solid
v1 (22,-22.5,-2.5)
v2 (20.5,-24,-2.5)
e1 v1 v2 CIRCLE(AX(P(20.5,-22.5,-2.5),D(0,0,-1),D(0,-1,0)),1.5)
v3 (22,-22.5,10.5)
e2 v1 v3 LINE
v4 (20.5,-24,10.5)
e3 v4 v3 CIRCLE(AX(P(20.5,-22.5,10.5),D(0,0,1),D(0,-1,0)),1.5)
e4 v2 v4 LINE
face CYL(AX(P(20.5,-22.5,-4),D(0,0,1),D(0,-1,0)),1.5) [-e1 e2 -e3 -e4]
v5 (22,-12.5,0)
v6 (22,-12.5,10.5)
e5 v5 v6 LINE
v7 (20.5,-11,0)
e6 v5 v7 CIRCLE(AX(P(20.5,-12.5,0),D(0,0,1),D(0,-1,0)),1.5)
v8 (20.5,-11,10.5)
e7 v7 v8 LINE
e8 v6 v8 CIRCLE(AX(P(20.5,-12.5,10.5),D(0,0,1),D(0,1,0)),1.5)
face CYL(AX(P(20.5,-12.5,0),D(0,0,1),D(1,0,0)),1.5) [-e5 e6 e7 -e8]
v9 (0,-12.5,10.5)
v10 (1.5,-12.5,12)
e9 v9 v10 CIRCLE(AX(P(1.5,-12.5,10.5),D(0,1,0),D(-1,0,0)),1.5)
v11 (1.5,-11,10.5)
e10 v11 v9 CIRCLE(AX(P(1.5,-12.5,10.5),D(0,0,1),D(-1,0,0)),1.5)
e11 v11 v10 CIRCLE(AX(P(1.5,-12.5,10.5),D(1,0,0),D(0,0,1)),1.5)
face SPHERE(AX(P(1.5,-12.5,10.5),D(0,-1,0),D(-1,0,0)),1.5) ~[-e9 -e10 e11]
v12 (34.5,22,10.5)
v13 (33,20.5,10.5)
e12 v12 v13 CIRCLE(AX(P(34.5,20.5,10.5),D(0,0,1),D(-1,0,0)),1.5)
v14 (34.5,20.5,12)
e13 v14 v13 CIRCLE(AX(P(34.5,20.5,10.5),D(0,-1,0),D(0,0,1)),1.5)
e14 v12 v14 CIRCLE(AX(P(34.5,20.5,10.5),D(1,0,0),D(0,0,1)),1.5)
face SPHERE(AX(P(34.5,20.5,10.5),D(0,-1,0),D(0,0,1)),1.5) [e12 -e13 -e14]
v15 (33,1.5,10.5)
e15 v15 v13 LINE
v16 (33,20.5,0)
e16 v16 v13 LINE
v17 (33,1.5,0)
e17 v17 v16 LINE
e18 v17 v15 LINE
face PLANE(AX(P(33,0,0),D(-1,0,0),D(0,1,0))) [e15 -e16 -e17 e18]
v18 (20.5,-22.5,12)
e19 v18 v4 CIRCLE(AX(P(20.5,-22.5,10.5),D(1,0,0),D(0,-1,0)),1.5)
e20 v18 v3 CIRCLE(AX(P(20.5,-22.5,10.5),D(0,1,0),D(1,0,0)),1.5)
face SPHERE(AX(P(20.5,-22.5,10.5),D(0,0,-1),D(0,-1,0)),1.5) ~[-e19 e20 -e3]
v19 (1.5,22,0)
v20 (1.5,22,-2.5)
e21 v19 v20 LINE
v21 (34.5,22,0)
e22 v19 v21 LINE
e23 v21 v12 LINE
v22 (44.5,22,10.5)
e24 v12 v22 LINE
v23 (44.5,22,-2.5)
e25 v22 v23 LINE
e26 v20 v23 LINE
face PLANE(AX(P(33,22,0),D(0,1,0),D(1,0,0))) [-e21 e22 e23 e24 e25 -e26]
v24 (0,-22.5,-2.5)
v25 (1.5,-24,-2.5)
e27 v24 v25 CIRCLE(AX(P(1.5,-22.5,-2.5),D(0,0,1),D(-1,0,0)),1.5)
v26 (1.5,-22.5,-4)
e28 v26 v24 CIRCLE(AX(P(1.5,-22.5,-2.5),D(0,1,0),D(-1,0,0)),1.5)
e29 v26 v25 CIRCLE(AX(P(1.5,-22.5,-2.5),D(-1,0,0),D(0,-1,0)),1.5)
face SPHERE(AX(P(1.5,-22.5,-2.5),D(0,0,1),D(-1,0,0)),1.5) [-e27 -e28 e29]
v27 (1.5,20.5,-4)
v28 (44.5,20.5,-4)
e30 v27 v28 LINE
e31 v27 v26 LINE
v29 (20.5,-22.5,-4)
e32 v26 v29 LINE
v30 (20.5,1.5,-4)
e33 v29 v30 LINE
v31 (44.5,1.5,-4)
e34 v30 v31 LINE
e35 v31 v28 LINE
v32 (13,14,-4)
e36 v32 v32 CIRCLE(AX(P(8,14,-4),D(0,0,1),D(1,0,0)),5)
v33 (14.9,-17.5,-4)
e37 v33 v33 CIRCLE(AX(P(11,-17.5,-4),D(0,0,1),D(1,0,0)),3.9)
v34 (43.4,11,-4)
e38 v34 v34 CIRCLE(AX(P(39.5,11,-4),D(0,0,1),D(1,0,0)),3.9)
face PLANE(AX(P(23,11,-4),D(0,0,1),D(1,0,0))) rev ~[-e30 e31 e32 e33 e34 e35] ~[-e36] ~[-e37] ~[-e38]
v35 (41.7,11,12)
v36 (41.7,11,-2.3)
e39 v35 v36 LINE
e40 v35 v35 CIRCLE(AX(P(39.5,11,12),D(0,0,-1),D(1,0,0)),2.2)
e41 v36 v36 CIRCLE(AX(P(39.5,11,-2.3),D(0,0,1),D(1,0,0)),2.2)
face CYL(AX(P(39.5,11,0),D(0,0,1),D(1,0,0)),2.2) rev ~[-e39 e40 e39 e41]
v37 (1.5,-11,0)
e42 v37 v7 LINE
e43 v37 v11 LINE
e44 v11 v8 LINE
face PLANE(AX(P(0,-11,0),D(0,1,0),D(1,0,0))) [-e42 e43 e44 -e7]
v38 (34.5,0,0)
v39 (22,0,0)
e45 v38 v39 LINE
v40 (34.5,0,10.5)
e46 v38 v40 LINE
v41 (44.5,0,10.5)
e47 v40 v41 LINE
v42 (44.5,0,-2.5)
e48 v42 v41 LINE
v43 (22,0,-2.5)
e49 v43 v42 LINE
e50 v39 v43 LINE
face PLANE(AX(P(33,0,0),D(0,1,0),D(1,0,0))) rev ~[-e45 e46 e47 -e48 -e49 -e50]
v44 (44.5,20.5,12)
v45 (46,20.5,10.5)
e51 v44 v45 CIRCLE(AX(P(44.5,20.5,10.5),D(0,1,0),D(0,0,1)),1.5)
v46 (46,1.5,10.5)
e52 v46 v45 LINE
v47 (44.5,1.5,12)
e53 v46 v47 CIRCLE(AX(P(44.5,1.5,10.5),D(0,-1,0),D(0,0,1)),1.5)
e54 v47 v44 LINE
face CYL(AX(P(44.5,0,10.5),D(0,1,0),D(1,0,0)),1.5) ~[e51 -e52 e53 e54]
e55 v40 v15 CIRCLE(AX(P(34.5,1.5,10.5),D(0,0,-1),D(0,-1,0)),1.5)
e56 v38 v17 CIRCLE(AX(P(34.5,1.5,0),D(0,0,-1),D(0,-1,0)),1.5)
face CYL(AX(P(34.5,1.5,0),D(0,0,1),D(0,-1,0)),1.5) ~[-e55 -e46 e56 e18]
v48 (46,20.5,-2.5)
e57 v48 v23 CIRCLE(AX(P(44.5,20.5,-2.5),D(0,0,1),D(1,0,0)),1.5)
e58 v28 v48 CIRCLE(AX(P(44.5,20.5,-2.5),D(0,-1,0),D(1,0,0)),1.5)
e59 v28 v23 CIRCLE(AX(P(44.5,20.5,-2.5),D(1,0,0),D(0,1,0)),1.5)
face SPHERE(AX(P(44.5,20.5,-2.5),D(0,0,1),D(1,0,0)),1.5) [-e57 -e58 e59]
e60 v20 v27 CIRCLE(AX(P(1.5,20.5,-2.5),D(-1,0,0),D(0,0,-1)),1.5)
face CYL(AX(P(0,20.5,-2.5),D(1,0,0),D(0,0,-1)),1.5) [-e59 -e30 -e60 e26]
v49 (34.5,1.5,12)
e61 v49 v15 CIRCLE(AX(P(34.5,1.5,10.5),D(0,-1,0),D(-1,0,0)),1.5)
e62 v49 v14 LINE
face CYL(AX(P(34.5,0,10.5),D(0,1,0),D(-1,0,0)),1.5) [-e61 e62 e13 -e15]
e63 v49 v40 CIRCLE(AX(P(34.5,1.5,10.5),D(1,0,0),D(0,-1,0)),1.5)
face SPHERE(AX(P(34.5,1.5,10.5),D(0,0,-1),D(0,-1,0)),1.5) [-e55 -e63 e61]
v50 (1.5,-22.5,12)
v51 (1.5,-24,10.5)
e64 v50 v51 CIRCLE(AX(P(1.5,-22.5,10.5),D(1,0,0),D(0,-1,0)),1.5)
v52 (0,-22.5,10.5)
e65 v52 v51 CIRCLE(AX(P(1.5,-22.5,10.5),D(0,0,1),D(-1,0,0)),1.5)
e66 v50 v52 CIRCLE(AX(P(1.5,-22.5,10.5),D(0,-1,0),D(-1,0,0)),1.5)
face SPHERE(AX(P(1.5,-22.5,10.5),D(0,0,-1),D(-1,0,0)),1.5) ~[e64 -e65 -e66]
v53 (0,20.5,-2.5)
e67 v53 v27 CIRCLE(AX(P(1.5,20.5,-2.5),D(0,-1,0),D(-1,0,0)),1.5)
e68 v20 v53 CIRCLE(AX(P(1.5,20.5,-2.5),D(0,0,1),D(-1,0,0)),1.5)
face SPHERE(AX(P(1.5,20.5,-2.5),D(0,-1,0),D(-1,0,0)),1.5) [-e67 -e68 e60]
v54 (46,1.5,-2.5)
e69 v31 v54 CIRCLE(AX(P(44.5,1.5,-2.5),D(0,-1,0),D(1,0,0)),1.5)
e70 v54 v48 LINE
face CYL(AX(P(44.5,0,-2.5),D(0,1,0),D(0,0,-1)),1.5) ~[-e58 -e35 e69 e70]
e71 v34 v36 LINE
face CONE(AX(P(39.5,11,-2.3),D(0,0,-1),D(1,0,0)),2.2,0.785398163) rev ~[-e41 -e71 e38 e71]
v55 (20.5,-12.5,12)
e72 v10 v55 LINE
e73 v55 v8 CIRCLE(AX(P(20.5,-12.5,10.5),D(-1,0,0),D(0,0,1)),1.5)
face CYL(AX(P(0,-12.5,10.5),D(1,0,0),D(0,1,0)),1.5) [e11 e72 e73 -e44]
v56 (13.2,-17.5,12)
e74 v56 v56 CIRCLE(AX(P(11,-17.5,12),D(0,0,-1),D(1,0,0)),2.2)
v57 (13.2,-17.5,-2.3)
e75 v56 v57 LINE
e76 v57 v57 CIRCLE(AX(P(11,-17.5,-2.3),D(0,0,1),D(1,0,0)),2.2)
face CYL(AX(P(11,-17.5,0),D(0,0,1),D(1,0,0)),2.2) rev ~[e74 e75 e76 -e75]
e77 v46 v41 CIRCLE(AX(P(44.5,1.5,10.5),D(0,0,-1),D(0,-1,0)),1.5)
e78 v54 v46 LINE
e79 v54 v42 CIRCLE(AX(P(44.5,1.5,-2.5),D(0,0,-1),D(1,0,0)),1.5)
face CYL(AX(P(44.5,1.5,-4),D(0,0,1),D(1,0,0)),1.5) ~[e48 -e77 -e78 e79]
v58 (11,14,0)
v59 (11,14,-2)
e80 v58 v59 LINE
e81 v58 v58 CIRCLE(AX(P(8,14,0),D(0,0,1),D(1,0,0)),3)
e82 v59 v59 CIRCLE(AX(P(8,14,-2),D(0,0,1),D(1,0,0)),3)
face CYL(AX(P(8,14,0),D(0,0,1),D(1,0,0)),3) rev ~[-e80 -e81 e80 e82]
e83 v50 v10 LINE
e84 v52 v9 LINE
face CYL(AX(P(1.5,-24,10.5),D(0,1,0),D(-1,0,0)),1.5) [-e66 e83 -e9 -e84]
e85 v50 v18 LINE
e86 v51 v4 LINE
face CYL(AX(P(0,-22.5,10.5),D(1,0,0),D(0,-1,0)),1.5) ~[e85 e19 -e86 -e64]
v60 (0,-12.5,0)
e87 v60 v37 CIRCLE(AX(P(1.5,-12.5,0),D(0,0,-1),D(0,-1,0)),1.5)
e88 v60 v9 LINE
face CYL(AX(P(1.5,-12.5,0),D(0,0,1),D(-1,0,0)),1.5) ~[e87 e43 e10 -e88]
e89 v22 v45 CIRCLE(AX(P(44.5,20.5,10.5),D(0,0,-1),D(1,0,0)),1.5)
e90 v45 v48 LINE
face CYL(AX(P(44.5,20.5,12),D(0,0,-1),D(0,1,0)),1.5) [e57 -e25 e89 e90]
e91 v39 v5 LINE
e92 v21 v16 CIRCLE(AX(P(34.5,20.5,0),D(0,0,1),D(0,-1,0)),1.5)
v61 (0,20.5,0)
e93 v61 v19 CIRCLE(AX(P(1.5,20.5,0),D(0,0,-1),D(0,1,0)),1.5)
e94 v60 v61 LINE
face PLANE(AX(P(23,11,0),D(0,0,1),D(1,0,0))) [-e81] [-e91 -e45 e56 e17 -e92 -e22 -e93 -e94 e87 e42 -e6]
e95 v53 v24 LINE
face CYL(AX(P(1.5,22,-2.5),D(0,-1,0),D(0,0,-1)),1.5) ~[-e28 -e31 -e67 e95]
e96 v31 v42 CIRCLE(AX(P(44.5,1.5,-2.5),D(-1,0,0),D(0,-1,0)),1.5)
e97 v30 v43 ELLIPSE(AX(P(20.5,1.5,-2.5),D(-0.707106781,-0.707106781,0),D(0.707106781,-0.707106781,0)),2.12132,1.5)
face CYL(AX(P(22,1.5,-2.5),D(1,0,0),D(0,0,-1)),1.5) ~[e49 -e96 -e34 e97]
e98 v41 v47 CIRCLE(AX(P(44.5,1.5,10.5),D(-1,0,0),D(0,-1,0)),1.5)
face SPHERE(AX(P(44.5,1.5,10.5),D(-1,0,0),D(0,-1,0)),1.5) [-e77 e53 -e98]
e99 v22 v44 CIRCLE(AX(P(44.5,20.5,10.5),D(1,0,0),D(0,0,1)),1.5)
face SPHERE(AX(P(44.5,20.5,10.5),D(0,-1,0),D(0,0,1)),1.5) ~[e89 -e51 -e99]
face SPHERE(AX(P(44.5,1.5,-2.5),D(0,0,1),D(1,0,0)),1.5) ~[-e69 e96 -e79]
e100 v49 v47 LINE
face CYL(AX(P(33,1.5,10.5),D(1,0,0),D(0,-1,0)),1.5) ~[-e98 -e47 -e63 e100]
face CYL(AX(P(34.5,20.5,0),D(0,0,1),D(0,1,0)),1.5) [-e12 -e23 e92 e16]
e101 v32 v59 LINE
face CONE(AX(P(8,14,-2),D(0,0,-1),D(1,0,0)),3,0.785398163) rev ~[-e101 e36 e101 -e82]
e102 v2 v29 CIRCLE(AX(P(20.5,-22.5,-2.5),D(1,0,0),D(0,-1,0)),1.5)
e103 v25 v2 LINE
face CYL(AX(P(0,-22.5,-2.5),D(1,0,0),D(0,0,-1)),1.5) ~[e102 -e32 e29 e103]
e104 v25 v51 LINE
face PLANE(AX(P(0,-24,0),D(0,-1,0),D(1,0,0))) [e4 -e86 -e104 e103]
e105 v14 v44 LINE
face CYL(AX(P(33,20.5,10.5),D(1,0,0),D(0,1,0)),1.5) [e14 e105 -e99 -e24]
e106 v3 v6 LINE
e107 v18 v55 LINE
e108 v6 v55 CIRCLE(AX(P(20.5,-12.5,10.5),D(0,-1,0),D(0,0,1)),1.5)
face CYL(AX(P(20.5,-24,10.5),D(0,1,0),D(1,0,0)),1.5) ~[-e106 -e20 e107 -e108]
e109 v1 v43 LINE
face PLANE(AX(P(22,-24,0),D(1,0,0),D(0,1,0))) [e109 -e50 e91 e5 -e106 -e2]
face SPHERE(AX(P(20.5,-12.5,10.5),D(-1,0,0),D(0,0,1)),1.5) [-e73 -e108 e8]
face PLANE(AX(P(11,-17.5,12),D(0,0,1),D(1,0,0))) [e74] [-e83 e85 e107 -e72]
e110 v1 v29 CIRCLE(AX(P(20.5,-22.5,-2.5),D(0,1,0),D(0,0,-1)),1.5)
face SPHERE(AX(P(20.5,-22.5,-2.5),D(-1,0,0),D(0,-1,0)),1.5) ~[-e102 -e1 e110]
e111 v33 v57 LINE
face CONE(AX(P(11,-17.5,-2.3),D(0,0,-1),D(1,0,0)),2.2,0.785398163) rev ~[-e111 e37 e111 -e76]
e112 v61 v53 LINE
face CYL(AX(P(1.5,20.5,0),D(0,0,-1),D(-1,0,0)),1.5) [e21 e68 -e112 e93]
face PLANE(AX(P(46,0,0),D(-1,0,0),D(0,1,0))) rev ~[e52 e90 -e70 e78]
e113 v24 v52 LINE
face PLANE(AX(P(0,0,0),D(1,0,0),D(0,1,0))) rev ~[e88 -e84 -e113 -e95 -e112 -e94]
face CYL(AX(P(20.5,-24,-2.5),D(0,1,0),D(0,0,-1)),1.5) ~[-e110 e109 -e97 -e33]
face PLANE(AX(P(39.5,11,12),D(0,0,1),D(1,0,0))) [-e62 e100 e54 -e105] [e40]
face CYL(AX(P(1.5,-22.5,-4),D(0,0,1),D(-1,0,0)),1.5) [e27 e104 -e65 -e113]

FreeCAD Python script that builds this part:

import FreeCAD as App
import Part
import Sketcher
Q = App.Units.Quantity


def edges_at(feature, points):
    """Names of the edges that pass closest to the given points."""
    edges = feature.Shape.Edges
    near = lambda p: min(range(len(edges)), key=lambda i: edges[i].distToShape(Part.Vertex(*p))[0])
    return sorted({f"Edge{near(p) + 1}" for p in points})

doc = App.newDocument("Part")
params = doc.addObject("Spreadsheet::Sheet", "Params")
for row, (alias, value) in enumerate([
    ("sketch1_width", "22 mm"),
    ("sketch1_height", "13 mm"),
    ("pad1_length", "12 mm"),
    ("sketch2_width", "22 mm"),
    ("sketch2_height", "24 mm"),
    ("pad2_length", "4 mm"),
    ("sketch3_width", "46 mm"),
    ("sketch3_height", "22 mm"),
    ("pad3_length", "4 mm"),
    ("sketch4_width", "13 mm"),
    ("sketch4_height", "22 mm"),
    ("pad4_length", "12 mm"),
    ("sketch5_diameter", "4.4 mm"),
    ("pocket1_length", "22 mm"),
    ("sketch6_diameter", "6 mm"),
    ("pocket2_length", "5 mm"),
    ("sketch7_diameter", "4.4 mm"),
    ("pocket3_length", "22 mm"),
    ("sketch8_diameter", "4.4 mm"),
    ("pocket4_length", "22 mm"),
    ("sketch9_diameter", "4.4 mm"),
    ("pocket5_length", "22 mm"),
    ("chamfer_size", "2 mm"),
    ("chamfer2_size", "1.7 mm"),
    ("chamfer3_size", "1.7 mm"),
    ("fillet_radius", "1.5 mm"),
], start=1):
    params.set(f"A{row}", alias)
    params.set(f"B{row}", "=" + value)
    params.setAlias(f"B{row}", alias)

body = doc.addObject("PartDesign::Body", "Body")

# Sketch on XY plane
sketch1 = doc.addObject("Sketcher::SketchObject", "Sketch")
body.addObject(sketch1)
sketch1.AttachmentSupport = (doc.XY_Plane, [""])
sketch1.MapMode = "FlatFace"
sketch1.addGeometry([
    Part.LineSegment(App.Vector(0, -11, 0), App.Vector(0, -24, 0)),
    Part.LineSegment(App.Vector(0, -24, 0), App.Vector(22, -24, 0)),
    Part.LineSegment(App.Vector(22, -24, 0), App.Vector(22, -11, 0)),
    Part.LineSegment(App.Vector(22, -11, 0), App.Vector(0, -11, 0)),
], False)
sketch1.addConstraint([
    Sketcher.Constraint("Coincident", 0, 2, 1, 1),
    Sketcher.Constraint("Coincident", 1, 2, 2, 1),
    Sketcher.Constraint("Coincident", 2, 2, 3, 1),
    Sketcher.Constraint("Coincident", 3, 2, 0, 1),
    Sketcher.Constraint("Vertical", 0),
    Sketcher.Constraint("Horizontal", 1),
    Sketcher.Constraint("Vertical", 2),
    Sketcher.Constraint("Horizontal", 3),
    Sketcher.Constraint("PointOnObject", 0, 2, -2),
    Sketcher.Constraint("DistanceX", 1, 1, 1, 2, Q("22 mm")),
    Sketcher.Constraint("DistanceY", 0, 2, 0, 1, Q("13 mm")),
    Sketcher.Constraint("DistanceY", 0, 2, -1, 1, Q("24 mm")),
])
sketch1.setExpression("Constraints[9]", "Params.sketch1_width")
sketch1.setExpression("Constraints[10]", "Params.sketch1_height")
pad1 = doc.addObject("PartDesign::Pad", "Pad")
body.addObject(pad1)
pad1.Profile = sketch1
pad1.setExpression("Length", "Params.pad1_length")

# Sketch on XY plane
sketch2 = doc.addObject("Sketcher::SketchObject", "Sketch001")
body.addObject(sketch2)
sketch2.AttachmentSupport = (doc.XY_Plane, [""])
sketch2.MapMode = "FlatFace"
sketch2.addGeometry([
    Part.LineSegment(App.Vector(0, 0, 0), App.Vector(0, -24, 0)),
    Part.LineSegment(App.Vector(0, -24, 0), App.Vector(22, -24, 0)),
    Part.LineSegment(App.Vector(22, -24, 0), App.Vector(22, 0, 0)),
    Part.LineSegment(App.Vector(22, 0, 0), App.Vector(0, 0, 0)),
], False)
sketch2.addConstraint([
    Sketcher.Constraint("Coincident", 0, 2, 1, 1),
    Sketcher.Constraint("Coincident", 1, 2, 2, 1),
    Sketcher.Constraint("Coincident", 2, 2, 3, 1),
    Sketcher.Constraint("Coincident", 3, 2, 0, 1),
    Sketcher.Constraint("Vertical", 0),
    Sketcher.Constraint("Horizontal", 1),
    Sketcher.Constraint("Vertical", 2),
    Sketcher.Constraint("Horizontal", 3),
    Sketcher.Constraint("Coincident", 3, 2, -1, 1),
    Sketcher.Constraint("DistanceX", 1, 1, 1, 2, Q("22 mm")),
    Sketcher.Constraint("DistanceY", 0, 2, 0, 1, Q("24 mm")),
])
sketch2.setExpression("Constraints[9]", "Params.sketch2_width")
sketch2.setExpression("Constraints[10]", "Params.sketch2_height")
pad2 = doc.addObject("PartDesign::Pad", "Pad001")
body.addObject(pad2)
pad2.Profile = sketch2
pad2.setExpression("Length", "Params.pad2_length")
pad2.Reversed = True

# Sketch on XY plane
sketch3 = doc.addObject("Sketcher::SketchObject", "Sketch002")
body.addObject(sketch3)
sketch3.AttachmentSupport = (doc.XY_Plane, [""])
sketch3.MapMode = "FlatFace"
sketch3.addGeometry([
    Part.LineSegment(App.Vector(0, 22, 0), App.Vector(0, 0, 0)),
    Part.LineSegment(App.Vector(0, 0, 0), App.Vector(46, 0, 0)),
    Part.LineSegment(App.Vector(46, 0, 0), App.Vector(46, 22, 0)),
    Part.LineSegment(App.Vector(46, 22, 0), App.Vector(0, 22, 0)),
], False)
sketch3.addConstraint([
    Sketcher.Constraint("Coincident", 0, 2, 1, 1),
    Sketcher.Constraint("Coincident", 1, 2, 2, 1),
    Sketcher.Constraint("Coincident", 2, 2, 3, 1),
    Sketcher.Constraint("Coincident", 3, 2, 0, 1),
    Sketcher.Constraint("Vertical", 0),
    Sketcher.Constraint("Horizontal", 1),
    Sketcher.Constraint("Vertical", 2),
    Sketcher.Constraint("Horizontal", 3),
    Sketcher.Constraint("Coincident", 0, 2, -1, 1),
    Sketcher.Constraint("DistanceX", 1, 1, 1, 2, Q("46 mm")),
    Sketcher.Constraint("DistanceY", 0, 2, 0, 1, Q("22 mm")),
])
sketch3.setExpression("Constraints[9]", "Params.sketch3_width")
sketch3.setExpression("Constraints[10]", "Params.sketch3_height")
pad3 = doc.addObject("PartDesign::Pad", "Pad002")
body.addObject(pad3)
pad3.Profile = sketch3
pad3.setExpression("Length", "Params.pad3_length")
pad3.Reversed = True

# Sketch on XY plane
sketch4 = doc.addObject("Sketcher::SketchObject", "Sketch003")
body.addObject(sketch4)
sketch4.AttachmentSupport = (doc.XY_Plane, [""])
sketch4.MapMode = "FlatFace"
sketch4.addGeometry([
    Part.LineSegment(App.Vector(33, 22, 0), App.Vector(33, 0, 0)),
    Part.LineSegment(App.Vector(33, 0, 0), App.Vector(46, 0, 0)),
    Part.LineSegment(App.Vector(46, 0, 0), App.Vector(46, 22, 0)),
    Part.LineSegment(App.Vector(46, 22, 0), App.Vector(33, 22, 0)),
], False)
sketch4.addConstraint([
    Sketcher.Constraint("Coincident", 0, 2, 1, 1),
    Sketcher.Constraint("Coincident", 1, 2, 2, 1),
    Sketcher.Constraint("Coincident", 2, 2, 3, 1),
    Sketcher.Constraint("Coincident", 3, 2, 0, 1),
    Sketcher.Constraint("Vertical", 0),
    Sketcher.Constraint("Horizontal", 1),
    Sketcher.Constraint("Vertical", 2),
    Sketcher.Constraint("Horizontal", 3),
    Sketcher.Constraint("PointOnObject", 0, 2, -1),
    Sketcher.Constraint("DistanceX", 1, 1, 1, 2, Q("13 mm")),
    Sketcher.Constraint("DistanceY", 0, 2, 0, 1, Q("22 mm")),
    Sketcher.Constraint("DistanceX", -1, 1, 0, 2, Q("33 mm")),
])
sketch4.setExpression("Constraints[9]", "Params.sketch4_width")
sketch4.setExpression("Constraints[10]", "Params.sketch4_height")
pad4 = doc.addObject("PartDesign::Pad", "Pad003")
body.addObject(pad4)
pad4.Profile = sketch4
pad4.setExpression("Length", "Params.pad4_length")

# Sketch on XY plane
sketch5 = doc.addObject("Sketcher::SketchObject", "Sketch004")
body.addObject(sketch5)
sketch5.AttachmentSupport = (doc.XY_Plane, [""])
sketch5.MapMode = "FlatFace"
sketch5.addGeometry(Part.Circle(App.Vector(11, -17.5, 0), App.Vector(0, 0, 1), 2.2), False)
sketch5.addConstraint([
    Sketcher.Constraint("Diameter", 0, Q("4.4 mm")),
    Sketcher.Constraint("DistanceX", -1, 1, 0, 3, Q("11 mm")),
    Sketcher.Constraint("DistanceY", 0, 3, -1, 1, Q("17.5 mm")),
])
sketch5.setExpression("Constraints[0]", "Params.sketch5_diameter")
pocket1 = doc.addObject("PartDesign::Pocket", "Pocket")
body.addObject(pocket1)
pocket1.Profile = sketch5
pocket1.setExpression("Length", "Params.pocket1_length")

# Sketch on XY plane
sketch6 = doc.addObject("Sketcher::SketchObject", "Sketch005")
body.addObject(sketch6)
sketch6.AttachmentSupport = (doc.XY_Plane, [""])
sketch6.MapMode = "FlatFace"
sketch6.addGeometry(Part.Circle(App.Vector(8, 14, 0), App.Vector(0, 0, 1), 3), False)
sketch6.addConstraint([
    Sketcher.Constraint("Diameter", 0, Q("6 mm")),
    Sketcher.Constraint("DistanceX", -1, 1, 0, 3, Q("8 mm")),
    Sketcher.Constraint("DistanceY", -1, 1, 0, 3, Q("14 mm")),
])
sketch6.setExpression("Constraints[0]", "Params.sketch6_diameter")
pocket2 = doc.addObject("PartDesign::Pocket", "Pocket001")
body.addObject(pocket2)
pocket2.Profile = sketch6
pocket2.setExpression("Length", "Params.pocket2_length")

# Sketch on XY plane
sketch7 = doc.addObject("Sketcher::SketchObject", "Sketch006")
body.addObject(sketch7)
sketch7.AttachmentSupport = (doc.XY_Plane, [""])
sketch7.MapMode = "FlatFace"
sketch7.addGeometry(Part.Circle(App.Vector(39.5, 11, 0), App.Vector(0, 0, 1), 2.2), False)
sketch7.addConstraint([
    Sketcher.Constraint("Diameter", 0, Q("4.4 mm")),
    Sketcher.Constraint("DistanceY", -1, 1, 0, 3, Q("11 mm")),
    Sketcher.Constraint("DistanceX", -1, 1, 0, 3, Q("39.5 mm")),
])
sketch7.setExpression("Constraints[0]", "Params.sketch7_diameter")
pocket3 = doc.addObject("PartDesign::Pocket", "Pocket002")
body.addObject(pocket3)
pocket3.Profile = sketch7
pocket3.setExpression("Length", "Params.pocket3_length")

# Sketch on XY plane
sketch8 = doc.addObject("Sketcher::SketchObject", "Sketch007")
body.addObject(sketch8)
sketch8.AttachmentSupport = (doc.XY_Plane, [""])
sketch8.MapMode = "FlatFace"
sketch8.addGeometry(Part.Circle(App.Vector(39.5, 11, 0), App.Vector(0, 0, 1), 2.2), False)
sketch8.addConstraint([
    Sketcher.Constraint("Diameter", 0, Q("4.4 mm")),
    Sketcher.Constraint("DistanceY", -1, 1, 0, 3, Q("11 mm")),
    Sketcher.Constraint("DistanceX", -1, 1, 0, 3, Q("39.5 mm")),
])
sketch8.setExpression("Constraints[0]", "Params.sketch8_diameter")
pocket4 = doc.addObject("PartDesign::Pocket", "Pocket003")
body.addObject(pocket4)
pocket4.Profile = sketch8
pocket4.setExpression("Length", "Params.pocket4_length")
pocket4.Reversed = True

# Sketch on XY plane
sketch9 = doc.addObject("Sketcher::SketchObject", "Sketch008")
body.addObject(sketch9)
sketch9.AttachmentSupport = (doc.XY_Plane, [""])
sketch9.MapMode = "FlatFace"
sketch9.addGeometry(Part.Circle(App.Vector(11, -17.5, 0), App.Vector(0, 0, 1), 2.2), False)
sketch9.addConstraint([
    Sketcher.Constraint("Diameter", 0, Q("4.4 mm")),
    Sketcher.Constraint("DistanceX", -1, 1, 0, 3, Q("11 mm")),
    Sketcher.Constraint("DistanceY", 0, 3, -1, 1, Q("17.5 mm")),
])
sketch9.setExpression("Constraints[0]", "Params.sketch9_diameter")
pocket5 = doc.addObject("PartDesign::Pocket", "Pocket004")
body.addObject(pocket5)
pocket5.Profile = sketch9
pocket5.setExpression("Length", "Params.pocket5_length")
pocket5.Reversed = True
doc.recompute()

chamfer = doc.addObject("PartDesign::Chamfer", "Chamfer")
body.addObject(chamfer)
chamfer.Base = (pocket5, edges_at(pocket5, [(5, 14, -4)]))
chamfer.setExpression("Size", "Params.chamfer_size")
doc.recompute()

chamfer2 = doc.addObject("PartDesign::Chamfer", "Chamfer001")
body.addObject(chamfer2)
chamfer2.Base = (chamfer, edges_at(chamfer, [(37.3, 11, -4)]))
chamfer2.setExpression("Size", "Params.chamfer2_size")
doc.recompute()

chamfer3 = doc.addObject("PartDesign::Chamfer", "Chamfer002")
body.addObject(chamfer3)
chamfer3.Base = (chamfer2, edges_at(chamfer2, [(8.8, -17.5, -4)]))
chamfer3.setExpression("Size", "Params.chamfer3_size")
doc.recompute()

fillet = doc.addObject("PartDesign::Fillet", "Fillet")
body.addObject(fillet)
fillet.Base = (chamfer3, edges_at(chamfer3, [
    (0, -24, 4),
    (0, -17.5, 12),
    (0, -11, 6),
    (0, -1, -4),
    (11, -24, -4),
    (22, -24, 4),
    (11, -24, 12),
    (11, -11, 12),
    (22, -17.5, 12),
    (33, 0, 6),
    (39.5, 0, 12),
    (46, 0, 4),
    (46, 11, 12),
    (33, 11, 12),
    (39.5, 22, 12),
    (33, 22, 6),
    (0, 22, -2),
    (22, -11, 6),
    (46, 22, 4),
    (46, 11, -4),
    (23, 22, -4),
    (34, 0, -4),
    (22, -12, -4),
]))
fillet.setExpression("Radius", "Params.fillet_radius")

doc.recompute()
